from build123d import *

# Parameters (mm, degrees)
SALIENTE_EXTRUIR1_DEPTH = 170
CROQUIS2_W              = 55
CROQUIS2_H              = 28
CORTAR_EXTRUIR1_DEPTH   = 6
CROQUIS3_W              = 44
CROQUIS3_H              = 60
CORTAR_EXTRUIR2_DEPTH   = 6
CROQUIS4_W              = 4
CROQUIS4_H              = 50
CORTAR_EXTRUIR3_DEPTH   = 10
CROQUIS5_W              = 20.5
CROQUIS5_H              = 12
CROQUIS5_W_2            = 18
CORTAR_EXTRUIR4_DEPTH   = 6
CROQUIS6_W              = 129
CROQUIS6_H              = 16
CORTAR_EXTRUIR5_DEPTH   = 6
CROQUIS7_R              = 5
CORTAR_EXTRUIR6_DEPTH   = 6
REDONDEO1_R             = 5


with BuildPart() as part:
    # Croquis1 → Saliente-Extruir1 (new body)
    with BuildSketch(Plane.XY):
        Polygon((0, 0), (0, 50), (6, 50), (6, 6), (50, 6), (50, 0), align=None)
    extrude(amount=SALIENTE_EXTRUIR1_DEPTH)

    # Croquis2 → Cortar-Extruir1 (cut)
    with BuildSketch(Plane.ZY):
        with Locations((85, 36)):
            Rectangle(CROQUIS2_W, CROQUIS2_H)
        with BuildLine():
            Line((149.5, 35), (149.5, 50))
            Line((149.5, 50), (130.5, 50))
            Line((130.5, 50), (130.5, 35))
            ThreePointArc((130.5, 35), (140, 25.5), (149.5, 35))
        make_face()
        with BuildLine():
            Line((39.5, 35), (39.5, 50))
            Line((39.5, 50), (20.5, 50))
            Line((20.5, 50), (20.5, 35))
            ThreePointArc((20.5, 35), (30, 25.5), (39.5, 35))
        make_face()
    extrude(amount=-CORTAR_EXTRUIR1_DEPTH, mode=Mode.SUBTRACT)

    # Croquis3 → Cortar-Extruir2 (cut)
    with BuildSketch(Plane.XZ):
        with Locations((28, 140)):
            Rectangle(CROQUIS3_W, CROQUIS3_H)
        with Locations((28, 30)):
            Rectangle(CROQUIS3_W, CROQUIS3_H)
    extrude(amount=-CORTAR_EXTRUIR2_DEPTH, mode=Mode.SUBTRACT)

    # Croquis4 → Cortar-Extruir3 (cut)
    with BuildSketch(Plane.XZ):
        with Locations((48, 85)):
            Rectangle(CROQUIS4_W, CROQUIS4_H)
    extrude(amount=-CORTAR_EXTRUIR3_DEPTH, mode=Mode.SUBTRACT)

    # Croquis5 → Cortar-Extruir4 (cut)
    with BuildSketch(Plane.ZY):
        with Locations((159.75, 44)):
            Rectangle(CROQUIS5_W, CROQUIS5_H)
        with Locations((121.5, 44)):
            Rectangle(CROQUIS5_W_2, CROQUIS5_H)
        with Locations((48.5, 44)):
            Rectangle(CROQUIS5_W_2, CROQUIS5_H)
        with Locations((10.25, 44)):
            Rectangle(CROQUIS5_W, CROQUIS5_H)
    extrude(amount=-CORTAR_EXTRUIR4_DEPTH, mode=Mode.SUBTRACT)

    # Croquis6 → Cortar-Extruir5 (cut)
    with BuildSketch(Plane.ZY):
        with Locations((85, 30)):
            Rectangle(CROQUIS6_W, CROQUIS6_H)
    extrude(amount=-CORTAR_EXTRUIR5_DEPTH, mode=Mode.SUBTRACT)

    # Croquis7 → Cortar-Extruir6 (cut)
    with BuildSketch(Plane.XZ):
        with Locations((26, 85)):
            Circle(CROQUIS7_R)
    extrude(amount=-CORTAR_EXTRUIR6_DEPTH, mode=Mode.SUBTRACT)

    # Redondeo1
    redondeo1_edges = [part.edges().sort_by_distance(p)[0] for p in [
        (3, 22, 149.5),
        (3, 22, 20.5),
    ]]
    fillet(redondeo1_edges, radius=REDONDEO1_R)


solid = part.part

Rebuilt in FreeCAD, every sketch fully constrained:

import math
import FreeCAD as App
import Part
import Sketcher
from FreeCAD import Vector


def edges_at(feature, points):
    """Names of the edges that pass closest to the given points."""
    edges = feature.Shape.Edges
    near = lambda p: min(range(len(edges)), key=lambda i: edges[i].distToShape(Part.Vertex(*p))[0])
    return sorted({f"Edge{near(p) + 1}" for p in points})

doc = App.newDocument("Part")
body = doc.addObject("PartDesign::Body", "Body")

sketch1 = body.newObject("Sketcher::SketchObject", "Sketch")
sketch1.AttachmentSupport = (doc.getObject("XY_Plane"), [""])
sketch1.MapMode = "FlatFace"
sketch1.addGeometry(Part.LineSegment(Vector(0, 50, 0), Vector(0, 0, 0)), False)
sketch1.addGeometry(Part.LineSegment(Vector(0, 0, 0), Vector(50, 0, 0)), False)
sketch1.addGeometry(Part.LineSegment(Vector(50, 0, 0), Vector(50, 6, 0)), False)
sketch1.addGeometry(Part.LineSegment(Vector(50, 6, 0), Vector(6, 6, 0)), False)
sketch1.addGeometry(Part.LineSegment(Vector(6, 6, 0), Vector(6, 50, 0)), False)
sketch1.addGeometry(Part.LineSegment(Vector(6, 50, 0), Vector(0, 50, 0)), False)
sketch1.addConstraint(Sketcher.Constraint("Coincident", 0, 2, 1, 1))
sketch1.addConstraint(Sketcher.Constraint("Coincident", 1, 2, 2, 1))
sketch1.addConstraint(Sketcher.Constraint("Coincident", 2, 2, 3, 1))
sketch1.addConstraint(Sketcher.Constraint("Coincident", 3, 2, 4, 1))
sketch1.addConstraint(Sketcher.Constraint("Coincident", 4, 2, 5, 1))
sketch1.addConstraint(Sketcher.Constraint("Coincident", 5, 2, 0, 1))
sketch1.addConstraint(Sketcher.Constraint("Vertical", 0))
sketch1.addConstraint(Sketcher.Constraint("Horizontal", 1))
sketch1.addConstraint(Sketcher.Constraint("Vertical", 2))
sketch1.addConstraint(Sketcher.Constraint("Horizontal", 3))
sketch1.addConstraint(Sketcher.Constraint("Vertical", 4))
sketch1.addConstraint(Sketcher.Constraint("Horizontal", 5))
sketch1.addConstraint(Sketcher.Constraint("Coincident", 0, 2, -1, 1))
sketch1.addConstraint(Sketcher.Constraint("Equal", 1, 0))
sketch1.addConstraint(Sketcher.Constraint("Equal", 5, 2))
sketch1.addConstraint(Sketcher.Constraint("DistanceX", 1, 1, 1, 2, 50.0))
sketch1.addConstraint(Sketcher.Constraint("DistanceX", 3, 2, 3, 1, 44.0))
pad1 = body.newObject("PartDesign::Pad", "Pad")
pad1.Profile = sketch1
pad1.Length = 170

sketch2 = body.newObject("Sketcher::SketchObject", "Sketch001")
sketch2.AttachmentSupport = (doc.getObject("YZ_Plane"), [""])
sketch2.MapMode = "FlatFace"
sketch2.addGeometry(Part.LineSegment(Vector(50, 57.5, 0), Vector(22, 57.5, 0)), False)
sketch2.addGeometry(Part.LineSegment(Vector(22, 57.5, 0), Vector(22, 112.5, 0)), False)
sketch2.addGeometry(Part.LineSegment(Vector(22, 112.5, 0), Vector(50, 112.5, 0)), False)
sketch2.addGeometry(Part.LineSegment(Vector(50, 112.5, 0), Vector(50, 57.5, 0)), False)
sketch2.addGeometry(Part.LineSegment(Vector(35, 149.5, 0), Vector(50, 149.5, 0)), False)
sketch2.addGeometry(Part.LineSegment(Vector(50, 149.5, 0), Vector(50, 130.5, 0)), False)
sketch2.addGeometry(Part.LineSegment(Vector(50, 130.5, 0), Vector(35, 130.5, 0)), False)
sketch2.addGeometry(Part.ArcOfCircle(Part.Circle(Vector(35, 140, 0), Vector(0, 0, 1), 9.5), math.radians(90), math.radians(270)), False)
sketch2.addGeometry(Part.LineSegment(Vector(35, 39.5, 0), Vector(50, 39.5, 0)), False)
sketch2.addGeometry(Part.LineSegment(Vector(50, 39.5, 0), Vector(50, 20.5, 0)), False)
sketch2.addGeometry(Part.LineSegment(Vector(50, 20.5, 0), Vector(35, 20.5, 0)), False)
sketch2.addGeometry(Part.ArcOfCircle(Part.Circle(Vector(35, 30, 0), Vector(0, 0, 1), 9.5), math.radians(90), math.radians(270)), False)
sketch2.addConstraint(Sketcher.Constraint("Coincident", 0, 2, 1, 1))
sketch2.addConstraint(Sketcher.Constraint("Coincident", 1, 2, 2, 1))
sketch2.addConstraint(Sketcher.Constraint("Coincident", 2, 2, 3, 1))
sketch2.addConstraint(Sketcher.Constraint("Coincident", 3, 2, 0, 1))
sketch2.addConstraint(Sketcher.Constraint("Coincident", 4, 2, 5, 1))
sketch2.addConstraint(Sketcher.Constraint("Coincident", 5, 2, 6, 1))
sketch2.addConstraint(Sketcher.Constraint("Tangent", 6, 2, 7, 2))
sketch2.addConstraint(Sketcher.Constraint("Tangent", 7, 1, 4, 1))
sketch2.addConstraint(Sketcher.Constraint("Coincident", 8, 2, 9, 1))
sketch2.addConstraint(Sketcher.Constraint("Coincident", 9, 2, 10, 1))
sketch2.addConstraint(Sketcher.Constraint("Tangent", 10, 2, 11, 2))
sketch2.addConstraint(Sketcher.Constraint("Tangent", 11, 1, 8, 1))
sketch2.addConstraint(Sketcher.Constraint("Horizontal", 0))
sketch2.addConstraint(Sketcher.Constraint("Vertical", 1))
sketch2.addConstraint(Sketcher.Constraint("Horizontal", 2))
sketch2.addConstraint(Sketcher.Constraint("Vertical", 3))
sketch2.addConstraint(Sketcher.Constraint("Horizontal", 4))
sketch2.addConstraint(Sketcher.Constraint("Vertical", 5))
sketch2.addConstraint(Sketcher.Constraint("Horizontal", 6))
sketch2.addConstraint(Sketcher.Constraint("Horizontal", 8))
sketch2.addConstraint(Sketcher.Constraint("Vertical", 9))
sketch2.addConstraint(Sketcher.Constraint("Horizontal", 10))
sketch2.addConstraint(Sketcher.Constraint("Equal", 7, 11))
sketch2.addConstraint(Sketcher.Constraint("Vertical", 7, 3, 11, 3))
sketch2.addConstraint(Sketcher.Constraint("Vertical", 3, 2, 4, 2))
sketch2.addConstraint(Sketcher.Constraint("Vertical", 5, 2, 8, 2))
sketch2.addConstraint(Sketcher.Constraint("Radius", 7, 9.5))
sketch2.addConstraint(Sketcher.Constraint("DistanceX", 0, 2, 0, 1, 28.0))
sketch2.addConstraint(Sketcher.Constraint("DistanceX", 4, 1, 4, 2, 15.0))
sketch2.addConstraint(Sketcher.Constraint("DistanceY", 1, 1, 1, 2, 55.0))
sketch2.addConstraint(Sketcher.Constraint("DistanceX", -1, 1, 7, 3, 35.0))
sketch2.addConstraint(Sketcher.Constraint("DistanceY", -1, 1, 7, 3, 140.0))
sketch2.addConstraint(Sketcher.Constraint("DistanceY", -1, 1, 11, 3, 30.0))
sketch2.addConstraint(Sketcher.Constraint("DistanceY", 2, 2, 4, 2, 37.0))
pocket1 = body.newObject("PartDesign::Pocket", "Pocket")
pocket1.Profile = sketch2
pocket1.Length = 6
pocket1.Reversed = True

sketch3 = body.newObject("Sketcher::SketchObject", "Sketch002")
sketch3.AttachmentSupport = (doc.getObject("XZ_Plane"), [""])
sketch3.MapMode = "FlatFace"
sketch3.addGeometry(Part.LineSegment(Vector(6, 170, 0), Vector(6, 110, 0)), False)
sketch3.addGeometry(Part.LineSegment(Vector(6, 110, 0), Vector(50, 110, 0)), False)
sketch3.addGeometry(Part.LineSegment(Vector(50, 110, 0), Vector(50, 170, 0)), False)
sketch3.addGeometry(Part.LineSegment(Vector(50, 170, 0), Vector(6, 170, 0)), False)
sketch3.addGeometry(Part.LineSegment(Vector(6, 60, 0), Vector(6, 0, 0)), False)
sketch3.addGeometry(Part.LineSegment(Vector(6, 0, 0), Vector(50, 0, 0)), False)
sketch3.addGeometry(Part.LineSegment(Vector(50, 0, 0), Vector(50, 60, 0)), False)
sketch3.addGeometry(Part.LineSegment(Vector(50, 60, 0), Vector(6, 60, 0)), False)
sketch3.addConstraint(Sketcher.Constraint("Coincident", 0, 2, 1, 1))
sketch3.addConstraint(Sketcher.Constraint("Coincident", 1, 2, 2, 1))
sketch3.addConstraint(Sketcher.Constraint("Coincident", 2, 2, 3, 1))
sketch3.addConstraint(Sketcher.Constraint("Coincident", 3, 2, 0, 1))
sketch3.addConstraint(Sketcher.Constraint("Coincident", 4, 2, 5, 1))
sketch3.addConstraint(Sketcher.Constraint("Coincident", 5, 2, 6, 1))
sketch3.addConstraint(Sketcher.Constraint("Coincident", 6, 2, 7, 1))
sketch3.addConstraint(Sketcher.Constraint("Coincident", 7, 2, 4, 1))
sketch3.addConstraint(Sketcher.Constraint("Vertical", 0))
sketch3.addConstraint(Sketcher.Constraint("Horizontal", 1))
sketch3.addConstraint(Sketcher.Constraint("Vertical", 2))
sketch3.addConstraint(Sketcher.Constraint("Horizontal", 3))
sketch3.addConstraint(Sketcher.Constraint("Vertical", 4))
sketch3.addConstraint(Sketcher.Constraint("Horizontal", 5))
sketch3.addConstraint(Sketcher.Constraint("Vertical", 6))
sketch3.addConstraint(Sketcher.Constraint("Horizontal", 7))
sketch3.addConstraint(Sketcher.Constraint("PointOnObject", 4, 2, -1))
sketch3.addConstraint(Sketcher.Constraint("Vertical", 3, 2, 4, 2))
sketch3.addConstraint(Sketcher.Constraint("Vertical", 2, 2, 5, 2))
sketch3.addConstraint(Sketcher.Constraint("Equal", 2, 4))
sketch3.addConstraint(Sketcher.Constraint("DistanceX", 1, 1, 1, 2, 44.0))
sketch3.addConstraint(Sketcher.Constraint("DistanceY", 0, 2, 0, 1, 60.0))
sketch3.addConstraint(Sketcher.Constraint("DistanceX", -1, 1, 0, 2, 6.0))
sketch3.addConstraint(Sketcher.Constraint("DistanceY", -1, 1, 0, 2, 110.0))
pocket2 = body.newObject("PartDesign::Pocket", "Pocket001")
pocket2.Profile = sketch3
pocket2.Length = 6

sketch4 = body.newObject("Sketcher::SketchObject", "Sketch003")
sketch4.AttachmentSupport = (doc.getObject("XZ_Plane"), [""])
sketch4.MapMode = "FlatFace"
sketch4.addGeometry(Part.LineSegment(Vector(46, 110, 0), Vector(46, 60, 0)), False)
sketch4.addGeometry(Part.LineSegment(Vector(46, 60, 0), Vector(50, 60, 0)), False)
sketch4.addGeometry(Part.LineSegment(Vector(50, 60, 0), Vector(50, 110, 0)), False)
sketch4.addGeometry(Part.LineSegment(Vector(50, 110, 0), Vector(46, 110, 0)), False)
sketch4.addConstraint(Sketcher.Constraint("Coincident", 0, 2, 1, 1))
sketch4.addConstraint(Sketcher.Constraint("Coincident", 1, 2, 2, 1))
sketch4.addConstraint(Sketcher.Constraint("Coincident", 2, 2, 3, 1))
sketch4.addConstraint(Sketcher.Constraint("Coincident", 3, 2, 0, 1))
sketch4.addConstraint(Sketcher.Constraint("Vertical", 0))
sketch4.addConstraint(Sketcher.Constraint("Horizontal", 1))
sketch4.addConstraint(Sketcher.Constraint("Vertical", 2))
sketch4.addConstraint(Sketcher.Constraint("Horizontal", 3))
sketch4.addConstraint(Sketcher.Constraint("DistanceX", 1, 1, 1, 2, 4.0))
sketch4.addConstraint(Sketcher.Constraint("DistanceY", 0, 2, 0, 1, 50.0))
sketch4.addConstraint(Sketcher.Constraint("DistanceX", -1, 1, 0, 2, 46.0))
sketch4.addConstraint(Sketcher.Constraint("DistanceY", -1, 1, 0, 2, 60.0))
pocket3 = body.newObject("PartDesign::Pocket", "Pocket002")
pocket3.Profile = sketch4
pocket3.Length = 10

sketch5 = body.newObject("Sketcher::SketchObject", "Sketch004")
sketch5.AttachmentSupport = (doc.getObject("YZ_Plane"), [""])
sketch5.MapMode = "FlatFace"
sketch5.addGeometry(Part.LineSegment(Vector(50, 149.5, 0), Vector(38, 149.5, 0)), False)
sketch5.addGeometry(Part.LineSegment(Vector(38, 149.5, 0), Vector(38, 170, 0)), False)
sketch5.addGeometry(Part.LineSegment(Vector(38, 170, 0), Vector(50, 170, 0)), False)
sketch5.addGeometry(Part.LineSegment(Vector(50, 170, 0), Vector(50, 149.5, 0)), False)
sketch5.addGeometry(Part.LineSegment(Vector(50, 112.5, 0), Vector(38, 112.5, 0)), False)
sketch5.addGeometry(Part.LineSegment(Vector(38, 112.5, 0), Vector(38, 130.5, 0)), False)
sketch5.addGeometry(Part.LineSegment(Vector(38, 130.5, 0), Vector(50, 130.5, 0)), False)
sketch5.addGeometry(Part.LineSegment(Vector(50, 130.5, 0), Vector(50, 112.5, 0)), False)
sketch5.addGeometry(Part.LineSegment(Vector(50, 39.5, 0), Vector(38, 39.5, 0)), False)
sketch5.addGeometry(Part.LineSegment(Vector(38, 39.5, 0), Vector(38, 57.5, 0)), False)
sketch5.addGeometry(Part.LineSegment(Vector(38, 57.5, 0), Vector(50, 57.5, 0)), False)
sketch5.addGeometry(Part.LineSegment(Vector(50, 57.5, 0), Vector(50, 39.5, 0)), False)
sketch5.addGeometry(Part.LineSegment(Vector(50, 0, 0), Vector(38, 0, 0)), False)
sketch5.addGeometry(Part.LineSegment(Vector(38, 0, 0), Vector(38, 20.5, 0)), False)
sketch5.addGeometry(Part.LineSegment(Vector(38, 20.5, 0), Vector(50, 20.5, 0)), False)
sketch5.addGeometry(Part.LineSegment(Vector(50, 20.5, 0), Vector(50, 0, 0)), False)
sketch5.addConstraint(Sketcher.Constraint("Coincident", 0, 2, 1, 1))
sketch5.addConstraint(Sketcher.Constraint("Coincident", 1, 2, 2, 1))
sketch5.addConstraint(Sketcher.Constraint("Coincident", 2, 2, 3, 1))
sketch5.addConstraint(Sketcher.Constraint("Coincident", 3, 2, 0, 1))
sketch5.addConstraint(Sketcher.Constraint("Coincident", 4, 2, 5, 1))
sketch5.addConstraint(Sketcher.Constraint("Coincident", 5, 2, 6, 1))
sketch5.addConstraint(Sketcher.Constraint("Coincident", 6, 2, 7, 1))
sketch5.addConstraint(Sketcher.Constraint("Coincident", 7, 2, 4, 1))
sketch5.addConstraint(Sketcher.Constraint("Coincident", 8, 2, 9, 1))
sketch5.addConstraint(Sketcher.Constraint("Coincident", 9, 2, 10, 1))
sketch5.addConstraint(Sketcher.Constraint("Coincident", 10, 2, 11, 1))
sketch5.addConstraint(Sketcher.Constraint("Coincident", 11, 2, 8, 1))
sketch5.addConstraint(Sketcher.Constraint("Coincident", 12, 2, 13, 1))
sketch5.addConstraint(Sketcher.Constraint("Coincident", 13, 2, 14, 1))
sketch5.addConstraint(Sketcher.Constraint("Coincident", 14, 2, 15, 1))
sketch5.addConstraint(Sketcher.Constraint("Coincident", 15, 2, 12, 1))
sketch5.addConstraint(Sketcher.Constraint("Horizontal", 0))
sketch5.addConstraint(Sketcher.Constraint("Vertical", 1))
sketch5.addConstraint(Sketcher.Constraint("Horizontal", 2))
sketch5.addConstraint(Sketcher.Constraint("Vertical", 3))
sketch5.addConstraint(Sketcher.Constraint("Horizontal", 4))
sketch5.addConstraint(Sketcher.Constraint("Vertical", 5))
sketch5.addConstraint(Sketcher.Constraint("Horizontal", 6))
sketch5.addConstraint(Sketcher.Constraint("Vertical", 7))
sketch5.addConstraint(Sketcher.Constraint("Horizontal", 8))
sketch5.addConstraint(Sketcher.Constraint("Vertical", 9))
sketch5.addConstraint(Sketcher.Constraint("Horizontal", 10))
sketch5.addConstraint(Sketcher.Constraint("Vertical", 11))
sketch5.addConstraint(Sketcher.Constraint("Horizontal", 12))
sketch5.addConstraint(Sketcher.Constraint("Vertical", 13))
sketch5.addConstraint(Sketcher.Constraint("Horizontal", 14))
sketch5.addConstraint(Sketcher.Constraint("Vertical", 15))
sketch5.addConstraint(Sketcher.Constraint("PointOnObject", 12, 2, -1))
sketch5.addConstraint(Sketcher.Constraint("Vertical", 1, 2, 4, 2))
sketch5.addConstraint(Sketcher.Constraint("Vertical", 3, 2, 6, 2))
sketch5.addConstraint(Sketcher.Constraint("Vertical", 5, 2, 8, 2))
sketch5.addConstraint(Sketcher.Constraint("Vertical", 7, 2, 10, 2))
sketch5.addConstraint(Sketcher.Constraint("Vertical", 9, 2, 12, 2))
sketch5.addConstraint(Sketcher.Constraint("Vertical", 11, 2, 14, 2))
sketch5.addConstraint(Sketcher.Constraint("Equal", 7, 9))
sketch5.addConstraint(Sketcher.Constraint("Equal", 3, 13))
sketch5.addConstraint(Sketcher.Constraint("DistanceX", 0, 2, 0, 1, 12.0))
sketch5.addConstraint(Sketcher.Constraint("DistanceY", 5, 1, 5, 2, 18.0))
sketch5.addConstraint(Sketcher.Constraint("DistanceY", 1, 1, 1, 2, 20.5))
sketch5.addConstraint(Sketcher.Constraint("DistanceX", -1, 1, 0, 2, 38.0))
sketch5.addConstraint(Sketcher.Constraint("DistanceY", -1, 1, 1, 2, 170.0))
sketch5.addConstraint(Sketcher.Constraint("DistanceY", 4, 2, 0, 2, 37.0))
sketch5.addConstraint(Sketcher.Constraint("DistanceY", 8, 2, 4, 2, 73.0))
pocket4 = body.newObject("PartDesign::Pocket", "Pocket003")
pocket4.Profile = sketch5
pocket4.Length = 6
pocket4.Reversed = True

sketch6 = body.newObject("Sketcher::SketchObject", "Sketch005")
sketch6.AttachmentSupport = (doc.getObject("YZ_Plane"), [""])
sketch6.MapMode = "FlatFace"
sketch6.addGeometry(Part.LineSegment(Vector(38, 20.5, 0), Vector(22, 20.5, 0)), False)
sketch6.addGeometry(Part.LineSegment(Vector(22, 20.5, 0), Vector(22, 149.5, 0)), False)
sketch6.addGeometry(Part.LineSegment(Vector(22, 149.5, 0), Vector(38, 149.5, 0)), False)
sketch6.addGeometry(Part.LineSegment(Vector(38, 149.5, 0), Vector(38, 20.5, 0)), False)
sketch6.addConstraint(Sketcher.Constraint("Coincident", 0, 2, 1, 1))
sketch6.addConstraint(Sketcher.Constraint("Coincident", 1, 2, 2, 1))
sketch6.addConstraint(Sketcher.Constraint("Coincident", 2, 2, 3, 1))
sketch6.addConstraint(Sketcher.Constraint("Coincident", 3, 2, 0, 1))
sketch6.addConstraint(Sketcher.Constraint("Horizontal", 0))
sketch6.addConstraint(Sketcher.Constraint("Vertical", 1))
sketch6.addConstraint(Sketcher.Constraint("Horizontal", 2))
sketch6.addConstraint(Sketcher.Constraint("Vertical", 3))
sketch6.addConstraint(Sketcher.Constraint("DistanceX", 0, 2, 0, 1, 16.0))
sketch6.addConstraint(Sketcher.Constraint("DistanceY", 1, 1, 1, 2, 129.0))
sketch6.addConstraint(Sketcher.Constraint("DistanceX", -1, 1, 0, 2, 22.0))
sketch6.addConstraint(Sketcher.Constraint("DistanceY", -1, 1, 0, 2, 20.5))
pocket5 = body.newObject("PartDesign::Pocket", "Pocket004")
pocket5.Profile = sketch6
pocket5.Length = 6
pocket5.Reversed = True

sketch7 = body.newObject("Sketcher::SketchObject", "Sketch006")
sketch7.AttachmentSupport = (doc.getObject("XZ_Plane"), [""])
sketch7.MapMode = "FlatFace"
sketch7.addGeometry(Part.Circle(Vector(26, 85, 0), Vector(0, 0, 1), 5), False)
sketch7.addConstraint(Sketcher.Constraint("Diameter", 0, 10.0))
sketch7.addConstraint(Sketcher.Constraint("DistanceX", -1, 1, 0, 3, 26.0))
sketch7.addConstraint(Sketcher.Constraint("DistanceY", -1, 1, 0, 3, 85.0))
pocket6 = body.newObject("PartDesign::Pocket", "Pocket005")
pocket6.Profile = sketch7
pocket6.Length = 6
doc.recompute()

fillet = body.newObject("PartDesign::Fillet", "Fillet")
fillet.Base = (pocket6, edges_at(pocket6, [(3, 22, 149.5), (3, 22, 20.5)]))
fillet.Radius = 5

doc.recompute()
